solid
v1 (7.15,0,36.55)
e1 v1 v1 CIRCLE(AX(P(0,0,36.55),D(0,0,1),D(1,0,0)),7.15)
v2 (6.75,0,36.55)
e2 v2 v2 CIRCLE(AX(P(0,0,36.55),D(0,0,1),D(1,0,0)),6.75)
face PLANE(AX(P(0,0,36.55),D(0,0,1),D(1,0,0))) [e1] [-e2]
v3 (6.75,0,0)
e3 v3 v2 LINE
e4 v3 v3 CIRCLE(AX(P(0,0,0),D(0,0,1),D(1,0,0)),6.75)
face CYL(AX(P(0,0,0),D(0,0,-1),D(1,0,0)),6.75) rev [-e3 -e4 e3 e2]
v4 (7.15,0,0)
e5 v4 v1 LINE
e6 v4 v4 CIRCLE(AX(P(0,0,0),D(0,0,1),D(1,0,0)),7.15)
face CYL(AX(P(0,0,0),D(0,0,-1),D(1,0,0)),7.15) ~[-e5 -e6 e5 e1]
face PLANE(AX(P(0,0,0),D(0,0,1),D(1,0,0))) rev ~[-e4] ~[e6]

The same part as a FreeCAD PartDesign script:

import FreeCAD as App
import Part
import Sketcher

doc = App.newDocument("Part")
body = doc.addObject("PartDesign::Body", "Body")

# Sketch on XY plane
sketch1 = body.newObject("Sketcher::SketchObject", "Sketch")
sketch1.AttachmentSupport = (doc.getObject("XY_Plane"), [""])
sketch1.MapMode = "FlatFace"
sketch1.addGeometry([
    Part.Circle(App.Vector(0, 0, 0), App.Vector(0, 0, 1), 7.15),
    Part.Circle(App.Vector(0, 0, 0), App.Vector(0, 0, 1), 6.75),
], False)
sketch1.addConstraint([
    Sketcher.Constraint("Coincident", 0, 3, -1, 1),
    Sketcher.Constraint("Coincident", 1, 3, -1, 1),
    Sketcher.Constraint("Diameter", 0, 14.3),
    Sketcher.Constraint("Diameter", 1, 13.5),
])
pad1 = body.newObject("PartDesign::Pad", "Pad")
pad1.Profile = sketch1
pad1.Length = 36.55

doc.recompute()
